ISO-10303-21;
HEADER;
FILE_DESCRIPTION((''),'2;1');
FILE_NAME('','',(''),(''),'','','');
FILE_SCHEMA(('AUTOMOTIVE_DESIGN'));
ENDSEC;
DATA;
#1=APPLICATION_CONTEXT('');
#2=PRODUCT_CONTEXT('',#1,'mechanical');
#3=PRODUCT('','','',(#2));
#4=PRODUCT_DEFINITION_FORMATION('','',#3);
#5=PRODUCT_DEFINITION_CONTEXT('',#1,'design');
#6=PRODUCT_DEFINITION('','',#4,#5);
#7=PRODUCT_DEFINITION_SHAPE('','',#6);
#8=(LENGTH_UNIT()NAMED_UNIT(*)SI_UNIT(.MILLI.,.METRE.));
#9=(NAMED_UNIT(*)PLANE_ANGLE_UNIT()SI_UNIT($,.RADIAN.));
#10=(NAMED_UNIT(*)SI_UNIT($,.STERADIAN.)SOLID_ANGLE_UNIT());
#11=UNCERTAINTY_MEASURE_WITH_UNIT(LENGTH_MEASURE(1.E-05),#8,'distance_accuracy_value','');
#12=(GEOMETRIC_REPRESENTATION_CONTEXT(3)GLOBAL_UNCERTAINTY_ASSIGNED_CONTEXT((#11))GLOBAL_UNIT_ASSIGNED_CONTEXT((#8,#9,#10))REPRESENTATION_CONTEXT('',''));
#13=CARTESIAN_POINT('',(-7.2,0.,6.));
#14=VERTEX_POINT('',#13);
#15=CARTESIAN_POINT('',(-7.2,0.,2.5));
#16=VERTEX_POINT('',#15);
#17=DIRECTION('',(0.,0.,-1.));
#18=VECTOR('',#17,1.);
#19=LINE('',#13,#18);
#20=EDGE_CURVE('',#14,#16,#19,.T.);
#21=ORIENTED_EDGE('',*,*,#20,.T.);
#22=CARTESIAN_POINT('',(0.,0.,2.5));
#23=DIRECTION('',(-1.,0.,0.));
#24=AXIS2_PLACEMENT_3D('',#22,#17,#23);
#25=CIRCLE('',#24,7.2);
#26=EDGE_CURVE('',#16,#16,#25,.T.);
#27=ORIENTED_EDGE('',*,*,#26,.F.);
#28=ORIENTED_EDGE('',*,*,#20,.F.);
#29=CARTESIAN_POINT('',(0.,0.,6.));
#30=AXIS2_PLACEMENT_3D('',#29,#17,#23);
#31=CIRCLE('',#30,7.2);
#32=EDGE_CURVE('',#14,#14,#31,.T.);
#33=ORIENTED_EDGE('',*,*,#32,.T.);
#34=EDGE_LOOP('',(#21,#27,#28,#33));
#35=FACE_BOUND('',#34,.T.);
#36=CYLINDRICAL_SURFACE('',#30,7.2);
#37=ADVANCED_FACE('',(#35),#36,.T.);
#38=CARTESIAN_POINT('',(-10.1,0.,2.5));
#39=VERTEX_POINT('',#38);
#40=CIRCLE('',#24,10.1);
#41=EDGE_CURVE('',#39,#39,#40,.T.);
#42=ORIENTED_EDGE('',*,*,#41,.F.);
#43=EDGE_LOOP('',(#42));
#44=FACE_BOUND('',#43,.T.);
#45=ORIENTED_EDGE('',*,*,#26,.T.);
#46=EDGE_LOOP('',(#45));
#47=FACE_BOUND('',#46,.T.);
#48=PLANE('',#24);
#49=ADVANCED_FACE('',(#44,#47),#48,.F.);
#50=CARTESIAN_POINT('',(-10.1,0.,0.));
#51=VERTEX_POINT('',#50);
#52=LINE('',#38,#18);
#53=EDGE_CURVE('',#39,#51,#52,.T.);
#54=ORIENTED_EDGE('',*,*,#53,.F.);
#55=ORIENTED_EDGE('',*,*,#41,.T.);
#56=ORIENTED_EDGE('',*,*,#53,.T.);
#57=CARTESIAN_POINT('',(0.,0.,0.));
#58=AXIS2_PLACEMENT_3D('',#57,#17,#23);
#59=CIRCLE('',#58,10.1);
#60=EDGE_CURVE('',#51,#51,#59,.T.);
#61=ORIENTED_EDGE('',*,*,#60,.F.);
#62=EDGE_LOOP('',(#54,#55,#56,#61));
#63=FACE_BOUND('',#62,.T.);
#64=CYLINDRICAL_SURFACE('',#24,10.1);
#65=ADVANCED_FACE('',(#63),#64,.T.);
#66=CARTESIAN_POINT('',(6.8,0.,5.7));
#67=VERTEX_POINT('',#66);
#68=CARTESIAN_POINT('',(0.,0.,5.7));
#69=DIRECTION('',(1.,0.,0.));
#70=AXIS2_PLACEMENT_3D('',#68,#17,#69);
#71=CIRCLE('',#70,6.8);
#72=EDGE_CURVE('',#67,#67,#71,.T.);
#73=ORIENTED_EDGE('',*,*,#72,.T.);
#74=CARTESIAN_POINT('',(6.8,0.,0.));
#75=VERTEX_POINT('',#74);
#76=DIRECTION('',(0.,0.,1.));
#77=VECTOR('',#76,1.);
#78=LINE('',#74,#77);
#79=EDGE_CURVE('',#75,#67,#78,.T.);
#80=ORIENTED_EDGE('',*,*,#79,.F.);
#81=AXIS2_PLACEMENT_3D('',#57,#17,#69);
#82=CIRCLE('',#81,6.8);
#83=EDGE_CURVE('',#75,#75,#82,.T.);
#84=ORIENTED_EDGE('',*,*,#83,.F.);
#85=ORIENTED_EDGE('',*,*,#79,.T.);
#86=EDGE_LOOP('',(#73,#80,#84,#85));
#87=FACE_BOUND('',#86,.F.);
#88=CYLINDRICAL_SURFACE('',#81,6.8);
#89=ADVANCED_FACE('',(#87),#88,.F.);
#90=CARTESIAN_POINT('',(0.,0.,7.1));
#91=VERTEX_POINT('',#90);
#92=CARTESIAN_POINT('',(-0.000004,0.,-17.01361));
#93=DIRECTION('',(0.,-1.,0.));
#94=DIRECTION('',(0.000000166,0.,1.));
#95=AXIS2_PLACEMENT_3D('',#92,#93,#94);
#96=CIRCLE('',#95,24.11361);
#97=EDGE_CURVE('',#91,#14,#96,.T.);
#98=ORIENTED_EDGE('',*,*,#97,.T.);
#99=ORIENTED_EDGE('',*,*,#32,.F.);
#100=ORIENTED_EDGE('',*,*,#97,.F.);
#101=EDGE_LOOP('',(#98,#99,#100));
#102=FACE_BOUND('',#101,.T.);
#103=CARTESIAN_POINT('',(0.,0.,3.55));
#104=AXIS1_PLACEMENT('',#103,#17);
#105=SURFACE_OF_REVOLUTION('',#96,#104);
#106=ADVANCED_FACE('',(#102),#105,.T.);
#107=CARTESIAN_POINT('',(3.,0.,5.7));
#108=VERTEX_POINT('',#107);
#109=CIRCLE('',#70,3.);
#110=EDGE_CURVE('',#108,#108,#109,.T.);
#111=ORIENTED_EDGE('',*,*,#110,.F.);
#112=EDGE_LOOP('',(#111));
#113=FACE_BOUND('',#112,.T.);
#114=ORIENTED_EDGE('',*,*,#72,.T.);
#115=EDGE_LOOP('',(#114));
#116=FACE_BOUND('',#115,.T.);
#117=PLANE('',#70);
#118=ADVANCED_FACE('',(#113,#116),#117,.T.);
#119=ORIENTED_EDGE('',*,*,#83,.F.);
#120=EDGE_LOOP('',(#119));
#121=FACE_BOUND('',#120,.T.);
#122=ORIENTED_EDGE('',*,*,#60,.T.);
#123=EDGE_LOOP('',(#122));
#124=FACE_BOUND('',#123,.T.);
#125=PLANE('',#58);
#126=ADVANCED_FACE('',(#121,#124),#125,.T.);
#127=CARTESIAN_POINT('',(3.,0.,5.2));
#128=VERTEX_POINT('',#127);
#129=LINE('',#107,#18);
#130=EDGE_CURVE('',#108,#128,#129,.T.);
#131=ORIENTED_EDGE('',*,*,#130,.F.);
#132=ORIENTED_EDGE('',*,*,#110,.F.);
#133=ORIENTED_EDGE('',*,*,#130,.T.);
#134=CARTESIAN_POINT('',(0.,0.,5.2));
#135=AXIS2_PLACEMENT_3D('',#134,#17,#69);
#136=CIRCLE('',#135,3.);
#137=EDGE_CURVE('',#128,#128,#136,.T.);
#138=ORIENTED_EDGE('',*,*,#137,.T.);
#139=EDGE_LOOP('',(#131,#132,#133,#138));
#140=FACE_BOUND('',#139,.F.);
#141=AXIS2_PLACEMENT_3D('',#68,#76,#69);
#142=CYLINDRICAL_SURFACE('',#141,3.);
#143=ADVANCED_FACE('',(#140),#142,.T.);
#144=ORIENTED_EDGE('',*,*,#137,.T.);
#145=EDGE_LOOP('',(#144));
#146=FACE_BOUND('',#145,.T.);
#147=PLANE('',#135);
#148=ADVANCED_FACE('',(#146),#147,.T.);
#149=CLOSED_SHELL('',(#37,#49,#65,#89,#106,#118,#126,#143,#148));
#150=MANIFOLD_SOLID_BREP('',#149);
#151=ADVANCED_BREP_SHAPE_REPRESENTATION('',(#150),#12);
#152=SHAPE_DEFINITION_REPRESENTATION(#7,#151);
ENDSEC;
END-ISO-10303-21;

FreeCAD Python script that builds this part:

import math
import FreeCAD as App
import Part
import Sketcher
Q = App.Units.Quantity

doc = App.newDocument("Part")
body = doc.addObject("PartDesign::Body", "Body")

sketch1 = doc.addObject("Sketcher::SketchObject", "Sketch")
body.addObject(sketch1)
sketch1.AttachmentSupport = (doc.XZ_Plane, [""])
sketch1.MapMode = "FlatFace"
sketch1.addGeometry([
    Part.LineSegment(App.Vector(-10.1, 0, 0), App.Vector(0, 0, 0)),
    Part.LineSegment(App.Vector(0, 0, 0), App.Vector(0, 7.1, 0)),
    Part.ArcOfCircle(Part.Circle(App.Vector(0, -17, 0), App.Vector(0, 0, 1), 24.1), math.radians(90), math.radians(107.37)),
    Part.LineSegment(App.Vector(-7.2, 6, 0), App.Vector(-7.2, 2.5, 0)),
    Part.LineSegment(App.Vector(-7.2, 2.5, 0), App.Vector(-10.1, 2.5, 0)),
    Part.LineSegment(App.Vector(-10.1, 2.5, 0), App.Vector(-10.1, 0, 0)),
], False)
sketch1.addConstraint([
    Sketcher.Constraint("Coincident", 0, 2, 1, 1),
    Sketcher.Constraint("Coincident", 1, 2, 2, 1),
    Sketcher.Constraint("Coincident", 2, 2, 3, 1),
    Sketcher.Constraint("Coincident", 3, 2, 4, 1),
    Sketcher.Constraint("Coincident", 4, 2, 5, 1),
    Sketcher.Constraint("Coincident", 5, 2, 0, 1),
    Sketcher.Constraint("Horizontal", 0),
    Sketcher.Constraint("Vertical", 1),
    Sketcher.Constraint("Vertical", 3),
    Sketcher.Constraint("Horizontal", 4),
    Sketcher.Constraint("Vertical", 5),
    Sketcher.Constraint("Coincident", 0, 2, -1, 1),
    Sketcher.Constraint("DistanceX", 0, 1, 0, 2, Q("10.1 mm")),
    Sketcher.Constraint("DistanceX", 4, 2, 4, 1, Q("2.9 mm")),
    Sketcher.Constraint("DistanceY", 1, 1, 1, 2, Q("7.1 mm")),
    Sketcher.Constraint("DistanceY", 3, 2, 3, 1, Q("3.5 mm")),
    Sketcher.Constraint("DistanceY", 5, 2, 5, 1, Q("2.5 mm")),
    Sketcher.Constraint("Radius", 2, Q("24.11361 mm")),
])
revolution = doc.addObject("PartDesign::Revolution", "Revolution")
body.addObject(revolution)
revolution.Profile = sketch1
revolution.ReferenceAxis = (sketch1, ["V_Axis"])
revolution.Angle = 360

sketch2 = doc.addObject("Sketcher::SketchObject", "Sketch001")
body.addObject(sketch2)
sketch2.AttachmentSupport = (doc.XY_Plane, [""])
sketch2.MapMode = "FlatFace"
sketch2.addGeometry(Part.Circle(App.Vector(0, 0, 0), App.Vector(0, 0, 1), 7), False)
sketch2.addConstraint([
    Sketcher.Constraint("Coincident", 0, 3, -1, 1),
    Sketcher.Constraint("Diameter", 0, Q("13.6 mm")),
])
pocket1 = doc.addObject("PartDesign::Pocket", "Pocket")
body.addObject(pocket1)
pocket1.Profile = sketch2
pocket1.Length = 5.7
pocket1.Reversed = True

sketch3 = doc.addObject("Sketcher::SketchObject", "Sketch002")
body.addObject(sketch3)
sketch3.AttachmentSupport = (doc.XY_Plane, [""])
sketch3.MapMode = "FlatFace"
sketch3.AttachmentOffset = App.Placement(App.Vector(0, 0, 5.7), App.Rotation())
sketch3.addGeometry(Part.Circle(App.Vector(0, 0, 0), App.Vector(0, 0, 1), 3), False)
sketch3.addConstraint([
    Sketcher.Constraint("Coincident", 0, 3, -1, 1),
    Sketcher.Constraint("Diameter", 0, Q("6 mm")),
])
pad1 = doc.addObject("PartDesign::Pad", "Pad")
body.addObject(pad1)
pad1.Profile = sketch3
pad1.Length = 0.5
pad1.Reversed = True

doc.recompute()
